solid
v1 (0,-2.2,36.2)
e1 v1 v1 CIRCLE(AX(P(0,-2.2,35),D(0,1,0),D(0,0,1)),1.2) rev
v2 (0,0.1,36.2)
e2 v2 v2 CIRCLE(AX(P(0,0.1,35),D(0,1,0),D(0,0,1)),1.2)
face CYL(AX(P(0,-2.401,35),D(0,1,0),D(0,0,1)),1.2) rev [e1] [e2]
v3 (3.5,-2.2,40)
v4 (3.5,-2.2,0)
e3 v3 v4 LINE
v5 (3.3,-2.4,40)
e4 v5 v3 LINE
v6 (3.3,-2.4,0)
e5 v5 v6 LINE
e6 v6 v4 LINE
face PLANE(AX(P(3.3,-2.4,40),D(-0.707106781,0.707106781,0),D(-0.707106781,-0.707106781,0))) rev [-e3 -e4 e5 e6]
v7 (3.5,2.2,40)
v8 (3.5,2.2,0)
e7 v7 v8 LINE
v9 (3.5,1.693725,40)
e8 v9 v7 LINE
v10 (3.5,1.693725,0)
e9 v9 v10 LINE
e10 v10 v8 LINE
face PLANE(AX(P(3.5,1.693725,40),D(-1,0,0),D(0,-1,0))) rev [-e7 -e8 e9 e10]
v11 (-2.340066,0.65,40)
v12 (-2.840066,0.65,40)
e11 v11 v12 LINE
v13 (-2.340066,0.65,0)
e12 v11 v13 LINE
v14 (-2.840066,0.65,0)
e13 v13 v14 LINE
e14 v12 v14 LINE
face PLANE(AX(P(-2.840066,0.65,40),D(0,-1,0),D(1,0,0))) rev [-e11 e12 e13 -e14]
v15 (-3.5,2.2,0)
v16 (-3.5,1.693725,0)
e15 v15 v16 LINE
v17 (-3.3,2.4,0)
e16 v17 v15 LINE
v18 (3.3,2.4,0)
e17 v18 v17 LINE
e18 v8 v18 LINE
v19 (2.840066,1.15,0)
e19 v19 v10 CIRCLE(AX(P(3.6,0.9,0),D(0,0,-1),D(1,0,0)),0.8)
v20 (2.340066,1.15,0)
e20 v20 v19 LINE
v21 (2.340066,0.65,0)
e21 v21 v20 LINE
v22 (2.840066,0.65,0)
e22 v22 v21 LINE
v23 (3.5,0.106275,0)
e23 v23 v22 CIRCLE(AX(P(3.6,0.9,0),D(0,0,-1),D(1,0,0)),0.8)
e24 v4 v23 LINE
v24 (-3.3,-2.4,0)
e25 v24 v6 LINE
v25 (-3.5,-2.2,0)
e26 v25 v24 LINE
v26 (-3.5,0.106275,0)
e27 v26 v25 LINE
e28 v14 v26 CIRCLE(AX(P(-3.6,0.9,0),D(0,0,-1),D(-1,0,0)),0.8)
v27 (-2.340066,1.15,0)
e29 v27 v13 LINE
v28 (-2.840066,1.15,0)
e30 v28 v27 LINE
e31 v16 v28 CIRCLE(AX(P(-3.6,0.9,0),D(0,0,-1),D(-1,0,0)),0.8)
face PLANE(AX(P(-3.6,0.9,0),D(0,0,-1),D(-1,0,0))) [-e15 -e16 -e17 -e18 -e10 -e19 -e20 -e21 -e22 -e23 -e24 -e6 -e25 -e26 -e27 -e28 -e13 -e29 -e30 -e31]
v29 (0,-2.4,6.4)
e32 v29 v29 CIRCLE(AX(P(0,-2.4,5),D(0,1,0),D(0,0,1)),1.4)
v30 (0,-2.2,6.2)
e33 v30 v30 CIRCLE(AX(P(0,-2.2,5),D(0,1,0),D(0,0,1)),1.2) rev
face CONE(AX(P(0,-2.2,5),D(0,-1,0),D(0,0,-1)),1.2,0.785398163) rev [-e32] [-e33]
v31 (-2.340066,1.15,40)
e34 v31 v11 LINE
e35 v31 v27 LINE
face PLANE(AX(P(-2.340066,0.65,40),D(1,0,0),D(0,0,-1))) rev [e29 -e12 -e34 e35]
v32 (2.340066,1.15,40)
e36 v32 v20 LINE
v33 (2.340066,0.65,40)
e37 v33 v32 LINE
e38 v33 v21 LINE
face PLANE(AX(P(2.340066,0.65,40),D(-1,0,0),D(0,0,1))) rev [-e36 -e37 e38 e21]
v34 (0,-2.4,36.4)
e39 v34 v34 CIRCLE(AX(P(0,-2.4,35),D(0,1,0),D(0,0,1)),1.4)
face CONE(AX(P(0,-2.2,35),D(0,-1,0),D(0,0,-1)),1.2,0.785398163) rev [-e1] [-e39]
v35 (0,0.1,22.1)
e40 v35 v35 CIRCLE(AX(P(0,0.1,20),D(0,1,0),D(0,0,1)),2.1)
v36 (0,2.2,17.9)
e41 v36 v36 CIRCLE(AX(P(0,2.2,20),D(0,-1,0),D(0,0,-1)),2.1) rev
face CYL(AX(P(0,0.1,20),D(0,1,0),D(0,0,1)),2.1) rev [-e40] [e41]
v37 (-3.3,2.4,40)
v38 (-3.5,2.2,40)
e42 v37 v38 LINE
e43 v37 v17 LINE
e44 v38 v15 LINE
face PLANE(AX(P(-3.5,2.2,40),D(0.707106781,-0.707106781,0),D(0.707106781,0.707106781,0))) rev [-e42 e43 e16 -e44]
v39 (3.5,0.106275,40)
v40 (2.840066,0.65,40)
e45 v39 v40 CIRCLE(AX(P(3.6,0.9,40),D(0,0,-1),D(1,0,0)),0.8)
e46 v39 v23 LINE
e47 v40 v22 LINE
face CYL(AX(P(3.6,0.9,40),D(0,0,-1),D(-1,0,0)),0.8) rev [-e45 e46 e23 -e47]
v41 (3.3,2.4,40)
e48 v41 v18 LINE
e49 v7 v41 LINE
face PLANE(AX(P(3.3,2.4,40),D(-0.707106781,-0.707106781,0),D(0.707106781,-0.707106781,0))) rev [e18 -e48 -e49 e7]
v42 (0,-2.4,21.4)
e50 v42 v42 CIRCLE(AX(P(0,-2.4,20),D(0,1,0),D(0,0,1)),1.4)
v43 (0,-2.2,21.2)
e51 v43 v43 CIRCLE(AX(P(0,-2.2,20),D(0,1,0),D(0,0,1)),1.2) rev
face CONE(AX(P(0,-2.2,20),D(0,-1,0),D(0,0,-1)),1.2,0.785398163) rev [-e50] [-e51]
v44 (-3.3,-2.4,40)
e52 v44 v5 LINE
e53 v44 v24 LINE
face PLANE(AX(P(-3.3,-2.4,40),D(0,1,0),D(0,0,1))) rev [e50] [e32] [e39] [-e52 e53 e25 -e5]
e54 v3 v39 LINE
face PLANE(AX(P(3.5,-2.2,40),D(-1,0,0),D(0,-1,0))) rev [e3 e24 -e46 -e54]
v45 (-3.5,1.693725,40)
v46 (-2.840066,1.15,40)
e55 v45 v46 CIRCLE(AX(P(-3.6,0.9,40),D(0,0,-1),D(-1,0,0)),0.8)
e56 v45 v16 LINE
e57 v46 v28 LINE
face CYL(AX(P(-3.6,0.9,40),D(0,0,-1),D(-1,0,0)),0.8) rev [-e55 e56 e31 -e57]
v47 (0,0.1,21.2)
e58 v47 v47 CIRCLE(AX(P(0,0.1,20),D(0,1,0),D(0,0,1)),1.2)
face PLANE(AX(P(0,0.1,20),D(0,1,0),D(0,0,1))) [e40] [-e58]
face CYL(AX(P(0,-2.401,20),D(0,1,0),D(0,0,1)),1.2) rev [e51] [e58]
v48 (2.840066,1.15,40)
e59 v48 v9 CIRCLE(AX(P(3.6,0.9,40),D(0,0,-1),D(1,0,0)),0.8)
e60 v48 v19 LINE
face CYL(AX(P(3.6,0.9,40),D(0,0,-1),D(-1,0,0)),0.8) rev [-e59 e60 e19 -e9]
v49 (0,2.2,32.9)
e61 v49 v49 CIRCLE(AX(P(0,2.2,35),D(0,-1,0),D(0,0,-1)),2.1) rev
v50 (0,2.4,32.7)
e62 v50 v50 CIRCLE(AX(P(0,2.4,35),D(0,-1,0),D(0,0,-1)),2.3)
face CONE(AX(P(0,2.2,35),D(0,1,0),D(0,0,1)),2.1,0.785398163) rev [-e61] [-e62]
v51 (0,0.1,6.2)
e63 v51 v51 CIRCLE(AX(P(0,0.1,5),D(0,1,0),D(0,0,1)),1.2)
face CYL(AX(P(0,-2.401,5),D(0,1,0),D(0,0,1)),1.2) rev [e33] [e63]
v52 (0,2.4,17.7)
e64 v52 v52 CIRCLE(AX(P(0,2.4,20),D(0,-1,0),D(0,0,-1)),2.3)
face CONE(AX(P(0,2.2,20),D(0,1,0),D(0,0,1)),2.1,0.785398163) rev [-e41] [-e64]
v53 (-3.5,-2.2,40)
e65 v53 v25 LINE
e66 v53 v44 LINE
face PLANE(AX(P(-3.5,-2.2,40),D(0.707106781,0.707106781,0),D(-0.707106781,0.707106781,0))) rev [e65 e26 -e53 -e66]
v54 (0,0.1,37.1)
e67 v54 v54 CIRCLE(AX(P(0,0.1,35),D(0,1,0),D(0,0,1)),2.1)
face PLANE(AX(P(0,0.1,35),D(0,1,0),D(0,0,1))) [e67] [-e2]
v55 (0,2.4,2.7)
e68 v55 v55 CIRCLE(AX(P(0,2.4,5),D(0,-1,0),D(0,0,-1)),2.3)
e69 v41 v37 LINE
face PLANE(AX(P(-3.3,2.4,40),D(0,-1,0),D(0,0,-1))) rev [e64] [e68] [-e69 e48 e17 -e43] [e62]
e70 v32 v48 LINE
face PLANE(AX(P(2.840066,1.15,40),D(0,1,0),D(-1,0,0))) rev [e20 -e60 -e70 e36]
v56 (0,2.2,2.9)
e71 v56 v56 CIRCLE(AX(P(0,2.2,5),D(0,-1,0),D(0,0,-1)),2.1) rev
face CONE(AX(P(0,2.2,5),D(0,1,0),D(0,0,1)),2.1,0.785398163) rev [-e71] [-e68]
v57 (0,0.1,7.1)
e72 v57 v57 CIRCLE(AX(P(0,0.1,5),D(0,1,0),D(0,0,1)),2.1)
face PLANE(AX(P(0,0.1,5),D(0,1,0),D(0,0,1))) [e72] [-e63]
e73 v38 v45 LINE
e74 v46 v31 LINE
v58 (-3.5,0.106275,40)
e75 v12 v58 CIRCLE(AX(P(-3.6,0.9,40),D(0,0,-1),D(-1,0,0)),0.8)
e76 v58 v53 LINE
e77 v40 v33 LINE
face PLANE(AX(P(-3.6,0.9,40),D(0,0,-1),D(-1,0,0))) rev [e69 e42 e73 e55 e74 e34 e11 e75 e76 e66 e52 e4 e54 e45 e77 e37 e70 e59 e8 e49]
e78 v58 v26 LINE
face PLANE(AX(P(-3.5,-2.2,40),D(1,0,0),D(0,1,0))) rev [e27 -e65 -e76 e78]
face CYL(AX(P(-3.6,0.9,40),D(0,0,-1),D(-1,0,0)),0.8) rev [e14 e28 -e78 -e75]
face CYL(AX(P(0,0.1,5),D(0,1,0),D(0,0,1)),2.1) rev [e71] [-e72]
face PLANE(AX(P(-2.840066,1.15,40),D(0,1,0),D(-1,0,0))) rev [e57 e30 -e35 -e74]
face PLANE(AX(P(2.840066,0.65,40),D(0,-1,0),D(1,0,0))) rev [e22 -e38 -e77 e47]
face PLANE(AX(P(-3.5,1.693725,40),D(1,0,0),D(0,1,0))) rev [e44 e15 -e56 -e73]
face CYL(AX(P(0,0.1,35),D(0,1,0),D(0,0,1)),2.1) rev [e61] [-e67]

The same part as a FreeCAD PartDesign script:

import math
import FreeCAD as App
import Part
import Sketcher

V = App.Vector
Q = App.Units.Quantity


def edges_at(feature, points):
    """Names of the edges that pass closest to the given points."""
    edges = feature.Shape.Edges
    near = lambda p: min(range(len(edges)), key=lambda i: edges[i].distToShape(Part.Vertex(*p))[0])
    return sorted({f"Edge{near(p) + 1}" for p in points})

doc = App.newDocument("Part")
body = doc.addObject("PartDesign::Body", "Body")

# Sketch on XY plane
sketch1 = body.newObject("Sketcher::SketchObject", "Sketch")
sketch1.AttachmentSupport = (doc.getObject("XY_Plane"), [""])
sketch1.MapMode = "FlatFace"
sketch1.addGeometry(Part.LineSegment(V(-3.3, -2.4, 0), V(3.3, -2.4, 0)), False)
sketch1.addGeometry(Part.LineSegment(V(3.3, -2.4, 0), V(3.5, -2.2, 0)), False)
sketch1.addGeometry(Part.LineSegment(V(3.5, -2.2, 0), V(3.5, 0.11, 0)), False)
sketch1.addGeometry(Part.ArcOfCircle(Part.Circle(V(3.6, 0.9, 0), V(0, 0, 1), 0.8), math.radians(-162), math.radians(-97)), False)
sketch1.addGeometry(Part.LineSegment(V(2.84, 0.65, 0), V(2.34, 0.65, 0)), False)
sketch1.addGeometry(Part.LineSegment(V(2.34, 0.65, 0), V(2.34, 1.15, 0)), False)
sketch1.addGeometry(Part.LineSegment(V(2.34, 1.15, 0), V(2.84, 1.15, 0)), False)
sketch1.addGeometry(Part.ArcOfCircle(Part.Circle(V(3.6, 0.9, 0), V(0, 0, 1), 0.8), math.radians(97), math.radians(162)), False)
sketch1.addGeometry(Part.LineSegment(V(3.5, 1.69, 0), V(3.5, 2.2, 0)), False)
sketch1.addGeometry(Part.LineSegment(V(3.5, 2.2, 0), V(3.3, 2.4, 0)), False)
sketch1.addGeometry(Part.LineSegment(V(3.3, 2.4, 0), V(-3.3, 2.4, 0)), False)
sketch1.addGeometry(Part.LineSegment(V(-3.3, 2.4, 0), V(-3.5, 2.2, 0)), False)
sketch1.addGeometry(Part.LineSegment(V(-3.5, 2.2, 0), V(-3.5, 1.69, 0)), False)
sketch1.addGeometry(Part.ArcOfCircle(Part.Circle(V(-3.6, 0.9, 0), V(0, 0, 1), 0.8), math.radians(18), math.radians(83)), False)
sketch1.addGeometry(Part.LineSegment(V(-2.84, 1.15, 0), V(-2.34, 1.15, 0)), False)
sketch1.addGeometry(Part.LineSegment(V(-2.34, 1.15, 0), V(-2.34, 0.65, 0)), False)
sketch1.addGeometry(Part.LineSegment(V(-2.34, 0.65, 0), V(-2.84, 0.65, 0)), False)
sketch1.addGeometry(Part.ArcOfCircle(Part.Circle(V(-3.6, 0.9, 0), V(0, 0, 1), 0.8), math.radians(-83), math.radians(-18)), False)
sketch1.addGeometry(Part.LineSegment(V(-3.5, 0.11, 0), V(-3.5, -2.2, 0)), False)
sketch1.addGeometry(Part.LineSegment(V(-3.5, -2.2, 0), V(-3.3, -2.4, 0)), False)
sketch1.addConstraint(Sketcher.Constraint("Coincident", 0, 2, 1, 1))
sketch1.addConstraint(Sketcher.Constraint("Coincident", 1, 2, 2, 1))
sketch1.addConstraint(Sketcher.Constraint("Coincident", 2, 2, 3, 2))
sketch1.addConstraint(Sketcher.Constraint("Coincident", 3, 1, 4, 1))
sketch1.addConstraint(Sketcher.Constraint("Coincident", 4, 2, 5, 1))
sketch1.addConstraint(Sketcher.Constraint("Coincident", 5, 2, 6, 1))
sketch1.addConstraint(Sketcher.Constraint("Coincident", 6, 2, 7, 2))
sketch1.addConstraint(Sketcher.Constraint("Coincident", 7, 1, 8, 1))
sketch1.addConstraint(Sketcher.Constraint("Coincident", 8, 2, 9, 1))
sketch1.addConstraint(Sketcher.Constraint("Coincident", 9, 2, 10, 1))
sketch1.addConstraint(Sketcher.Constraint("Coincident", 10, 2, 11, 1))
sketch1.addConstraint(Sketcher.Constraint("Coincident", 11, 2, 12, 1))
sketch1.addConstraint(Sketcher.Constraint("Coincident", 12, 2, 13, 2))
sketch1.addConstraint(Sketcher.Constraint("Coincident", 13, 1, 14, 1))
sketch1.addConstraint(Sketcher.Constraint("Coincident", 14, 2, 15, 1))
sketch1.addConstraint(Sketcher.Constraint("Coincident", 15, 2, 16, 1))
sketch1.addConstraint(Sketcher.Constraint("Coincident", 16, 2, 17, 2))
sketch1.addConstraint(Sketcher.Constraint("Coincident", 17, 1, 18, 1))
sketch1.addConstraint(Sketcher.Constraint("Coincident", 18, 2, 19, 1))
sketch1.addConstraint(Sketcher.Constraint("Coincident", 19, 2, 0, 1))
sketch1.addConstraint(Sketcher.Constraint("Horizontal", 0))
sketch1.addConstraint(Sketcher.Constraint("Vertical", 2))
sketch1.addConstraint(Sketcher.Constraint("Horizontal", 4))
sketch1.addConstraint(Sketcher.Constraint("Vertical", 5))
sketch1.addConstraint(Sketcher.Constraint("Horizontal", 6))
sketch1.addConstraint(Sketcher.Constraint("Vertical", 8))
sketch1.addConstraint(Sketcher.Constraint("Horizontal", 10))
sketch1.addConstraint(Sketcher.Constraint("Vertical", 12))
sketch1.addConstraint(Sketcher.Constraint("Horizontal", 14))
sketch1.addConstraint(Sketcher.Constraint("Vertical", 15))
sketch1.addConstraint(Sketcher.Constraint("Horizontal", 16))
sketch1.addConstraint(Sketcher.Constraint("Vertical", 18))
sketch1.addConstraint(Sketcher.Constraint("Coincident", 7, 3, 3, 3))
sketch1.addConstraint(Sketcher.Constraint("Coincident", 17, 3, 13, 3))
sketch1.addConstraint(Sketcher.Constraint("Equal", 3, 7))
sketch1.addConstraint(Sketcher.Constraint("Equal", 7, 13))
sketch1.addConstraint(Sketcher.Constraint("Equal", 13, 17))
sketch1.addConstraint(Sketcher.Constraint("Symmetric", 0, 2, 10, 2, -1, 1))
sketch1.addConstraint(Sketcher.Constraint("Symmetric", 1, 2, 11, 2, -1, 1))
sketch1.addConstraint(Sketcher.Constraint("Symmetric", 8, 2, 18, 2, -1, 1))
sketch1.addConstraint(Sketcher.Constraint("Symmetric", 3, 3, 13, 3, -2))
sketch1.addConstraint(Sketcher.Constraint("Symmetric", 8, 2, 11, 2, -2))
sketch1.addConstraint(Sketcher.Constraint("Symmetric", 5, 2, 14, 2, -2))
sketch1.addConstraint(Sketcher.Constraint("Perpendicular", 1, 9))
sketch1.addConstraint(Sketcher.Constraint("Perpendicular", 11, 19))
sketch1.addConstraint(Sketcher.Constraint("Horizontal", 4, 2, 15, 2))
sketch1.addConstraint(Sketcher.Constraint("Vertical", 3, 1, 6, 2))
sketch1.addConstraint(Sketcher.Constraint("Vertical", 0, 2, 9, 2))
sketch1.addConstraint(Sketcher.Constraint("Equal", 16, 5))
sketch1.addConstraint(Sketcher.Constraint("Radius", 3, Q("0.8 mm")))
sketch1.addConstraint(Sketcher.Constraint("DistanceX", 0, 1, 0, 2, Q("6.6 mm")))
sketch1.addConstraint(Sketcher.Constraint("DistanceX", 4, 2, 4, 1, Q("0.5 mm")))
sketch1.addConstraint(Sketcher.Constraint("DistanceX", -1, 1, 3, 3, Q("3.6 mm")))
sketch1.addConstraint(Sketcher.Constraint("DistanceY", -1, 1, 3, 3, Q("0.9 mm")))
sketch1.addConstraint(Sketcher.Constraint("DistanceY", 0, 2, -1, 1, Q("2.4 mm")))
sketch1.addConstraint(Sketcher.Constraint("DistanceX", -1, 1, 1, 2, Q("3.5 mm")))
pad1 = body.newObject("PartDesign::Pad", "Pad")
pad1.Profile = sketch1
pad1.Length = 40

# Sketch on XZ plane
sketch2 = body.newObject("Sketcher::SketchObject", "Sketch001")
sketch2.AttachmentSupport = (doc.getObject("XZ_Plane"), [""])
sketch2.MapMode = "FlatFace"
sketch2.AttachmentOffset = App.Placement(V(0, 0, -2.4), App.Rotation())
sketch2.addGeometry(Part.Circle(V(0, 5, 0), V(0, 0, 1), 1.2), False)
sketch2.addConstraint(Sketcher.Constraint("PointOnObject", 0, 3, -2))
sketch2.addConstraint(Sketcher.Constraint("Diameter", 0, Q("2.4 mm")))
sketch2.addConstraint(Sketcher.Constraint("DistanceY", -1, 1, 0, 3, Q("5 mm")))
pocket1 = body.newObject("PartDesign::Pocket", "Pocket")
pocket1.Profile = sketch2
pocket1.Length = 4.8
pocket1.Reversed = True

# Sketch on XZ plane
sketch3 = body.newObject("Sketcher::SketchObject", "Sketch002")
sketch3.AttachmentSupport = (doc.getObject("XZ_Plane"), [""])
sketch3.MapMode = "FlatFace"
sketch3.AttachmentOffset = App.Placement(V(0, 0, -2.4), App.Rotation())
sketch3.addGeometry(Part.Circle(V(0, 5, 0), V(0, 0, 1), 2.1), False)
sketch3.addGeometry(Part.Circle(V(0, 5, 0), V(0, 0, 1), 1.2), False)
sketch3.addConstraint(Sketcher.Constraint("Coincident", 1, 3, 0, 3))
sketch3.addConstraint(Sketcher.Constraint("PointOnObject", 0, 3, -2))
sketch3.addConstraint(Sketcher.Constraint("Diameter", 0, Q("4.2 mm")))
sketch3.addConstraint(Sketcher.Constraint("Diameter", 1, Q("2.4 mm")))
sketch3.addConstraint(Sketcher.Constraint("DistanceY", -1, 1, 0, 3, Q("5 mm")))
pocket2 = body.newObject("PartDesign::Pocket", "Pocket001")
pocket2.Profile = sketch3
pocket2.Length = 2.3
pocket2.Reversed = True
doc.recompute()

chamfer = body.newObject("PartDesign::Chamfer", "Chamfer")
chamfer.Base = (pocket2, edges_at(pocket2, [(-1.2, -2.4, 5), (-2.1, 2.4, 5)]))
chamfer.Size = 0.2
doc.recompute()

linearpattern = body.newObject("PartDesign::LinearPattern", "LinearPattern")
linearpattern.Originals = [pocket1, pocket2]
linearpattern.Direction = (doc.getObject("Z_Axis"), [""])
linearpattern.Mode = "offset"
linearpattern.Offset = 15
linearpattern.Occurrences = 3
body.Tip = linearpattern
doc.recompute()

chamfer2 = body.newObject("PartDesign::Chamfer", "Chamfer001")
chamfer2.Base = (linearpattern, edges_at(linearpattern, [
    (-1.2, -2.4, 20),
    (-2.1, 2.4, 20),
    (-1.2, -2.4, 35),
    (-2.1, 2.4, 35),
]))
chamfer2.Size = 0.2

doc.recompute()
